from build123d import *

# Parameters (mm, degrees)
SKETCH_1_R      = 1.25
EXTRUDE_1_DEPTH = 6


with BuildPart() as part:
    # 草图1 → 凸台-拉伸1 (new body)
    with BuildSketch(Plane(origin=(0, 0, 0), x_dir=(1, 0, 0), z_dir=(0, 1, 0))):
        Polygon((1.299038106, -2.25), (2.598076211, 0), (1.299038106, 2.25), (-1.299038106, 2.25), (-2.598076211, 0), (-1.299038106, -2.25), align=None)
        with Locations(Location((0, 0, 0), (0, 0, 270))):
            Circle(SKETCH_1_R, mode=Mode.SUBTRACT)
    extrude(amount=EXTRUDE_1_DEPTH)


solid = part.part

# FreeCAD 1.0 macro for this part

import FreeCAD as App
import Part
import Sketcher
from FreeCAD import Vector
Q = App.Units.Quantity

doc = App.newDocument("Part")
params = doc.addObject("Spreadsheet::Sheet", "Params")
for row, (alias, value) in enumerate([
    ("sketch1_diameter", "2.5 mm"),
    ("pad1_length", "6 mm"),
], start=1):
    params.set(f"A{row}", alias)
    params.set(f"B{row}", "=" + value)
    params.setAlias(f"B{row}", alias)

body = doc.addObject("PartDesign::Body", "Body")

# Sketch on XZ plane
sketch1 = doc.addObject("Sketcher::SketchObject", "Sketch")
body.addObject(sketch1)
sketch1.AttachmentSupport = (doc.XZ_Plane, [""])
sketch1.MapMode = "FlatFace"
sketch1.addGeometry([
    Part.LineSegment(Vector(1.3, 2.2, 0), Vector(2.6, 0, 0)),  # 0
    Part.LineSegment(Vector(2.6, 0, 0), Vector(1.3, -2.2, 0)),  # 1
    Part.LineSegment(Vector(1.3, -2.2, 0), Vector(-1.3, -2.2, 0)),  # 2
    Part.LineSegment(Vector(-1.3, -2.2, 0), Vector(-2.6, 0, 0)),  # 3
    Part.LineSegment(Vector(-2.6, 0, 0), Vector(-1.3, 2.2, 0)),  # 4
    Part.LineSegment(Vector(-1.3, 2.2, 0), Vector(1.3, 2.2, 0)),  # 5
    Part.Circle(Vector(0, 0, 0), Vector(0, 0, 1), 1.2),  # 6
], False)
sketch1.addConstraint([
    Sketcher.Constraint("Coincident", 0, 2, 1, 1),
    Sketcher.Constraint("Coincident", 1, 2, 2, 1),
    Sketcher.Constraint("Coincident", 2, 2, 3, 1),
    Sketcher.Constraint("Coincident", 3, 2, 4, 1),
    Sketcher.Constraint("Coincident", 4, 2, 5, 1),
    Sketcher.Constraint("Coincident", 5, 2, 0, 1),
    Sketcher.Constraint("Horizontal", 2),
    Sketcher.Constraint("Horizontal", 5),
    Sketcher.Constraint("Coincident", 6, 3, -1, 1),
    Sketcher.Constraint("Symmetric", 0, 2, 3, 2, -1, 1),
    Sketcher.Constraint("Symmetric", 1, 2, 4, 2, -1, 1),
    Sketcher.Constraint("PointOnObject", 0, 2, -1),
    Sketcher.Constraint("Parallel", 0, 3),
    Sketcher.Constraint("Vertical", 2, 2, 4, 2),
    Sketcher.Constraint("Diameter", 6, Q("2.5 mm")),
    Sketcher.Constraint("Angle", 0, Q("-60 deg")),
    Sketcher.Constraint("DistanceY", 2, 2, 4, 2, Q("4.5 mm")),
    Sketcher.Constraint("DistanceX", 2, 2, 2, 1, Q("2.598076 mm")),
])
sketch1.setExpression("Constraints[14]", "Params.sketch1_diameter")
pad1 = doc.addObject("PartDesign::Pad", "Pad")
body.addObject(pad1)
pad1.Profile = sketch1
pad1.setExpression("Length", "Params.pad1_length")
pad1.Reversed = True

doc.recompute()
